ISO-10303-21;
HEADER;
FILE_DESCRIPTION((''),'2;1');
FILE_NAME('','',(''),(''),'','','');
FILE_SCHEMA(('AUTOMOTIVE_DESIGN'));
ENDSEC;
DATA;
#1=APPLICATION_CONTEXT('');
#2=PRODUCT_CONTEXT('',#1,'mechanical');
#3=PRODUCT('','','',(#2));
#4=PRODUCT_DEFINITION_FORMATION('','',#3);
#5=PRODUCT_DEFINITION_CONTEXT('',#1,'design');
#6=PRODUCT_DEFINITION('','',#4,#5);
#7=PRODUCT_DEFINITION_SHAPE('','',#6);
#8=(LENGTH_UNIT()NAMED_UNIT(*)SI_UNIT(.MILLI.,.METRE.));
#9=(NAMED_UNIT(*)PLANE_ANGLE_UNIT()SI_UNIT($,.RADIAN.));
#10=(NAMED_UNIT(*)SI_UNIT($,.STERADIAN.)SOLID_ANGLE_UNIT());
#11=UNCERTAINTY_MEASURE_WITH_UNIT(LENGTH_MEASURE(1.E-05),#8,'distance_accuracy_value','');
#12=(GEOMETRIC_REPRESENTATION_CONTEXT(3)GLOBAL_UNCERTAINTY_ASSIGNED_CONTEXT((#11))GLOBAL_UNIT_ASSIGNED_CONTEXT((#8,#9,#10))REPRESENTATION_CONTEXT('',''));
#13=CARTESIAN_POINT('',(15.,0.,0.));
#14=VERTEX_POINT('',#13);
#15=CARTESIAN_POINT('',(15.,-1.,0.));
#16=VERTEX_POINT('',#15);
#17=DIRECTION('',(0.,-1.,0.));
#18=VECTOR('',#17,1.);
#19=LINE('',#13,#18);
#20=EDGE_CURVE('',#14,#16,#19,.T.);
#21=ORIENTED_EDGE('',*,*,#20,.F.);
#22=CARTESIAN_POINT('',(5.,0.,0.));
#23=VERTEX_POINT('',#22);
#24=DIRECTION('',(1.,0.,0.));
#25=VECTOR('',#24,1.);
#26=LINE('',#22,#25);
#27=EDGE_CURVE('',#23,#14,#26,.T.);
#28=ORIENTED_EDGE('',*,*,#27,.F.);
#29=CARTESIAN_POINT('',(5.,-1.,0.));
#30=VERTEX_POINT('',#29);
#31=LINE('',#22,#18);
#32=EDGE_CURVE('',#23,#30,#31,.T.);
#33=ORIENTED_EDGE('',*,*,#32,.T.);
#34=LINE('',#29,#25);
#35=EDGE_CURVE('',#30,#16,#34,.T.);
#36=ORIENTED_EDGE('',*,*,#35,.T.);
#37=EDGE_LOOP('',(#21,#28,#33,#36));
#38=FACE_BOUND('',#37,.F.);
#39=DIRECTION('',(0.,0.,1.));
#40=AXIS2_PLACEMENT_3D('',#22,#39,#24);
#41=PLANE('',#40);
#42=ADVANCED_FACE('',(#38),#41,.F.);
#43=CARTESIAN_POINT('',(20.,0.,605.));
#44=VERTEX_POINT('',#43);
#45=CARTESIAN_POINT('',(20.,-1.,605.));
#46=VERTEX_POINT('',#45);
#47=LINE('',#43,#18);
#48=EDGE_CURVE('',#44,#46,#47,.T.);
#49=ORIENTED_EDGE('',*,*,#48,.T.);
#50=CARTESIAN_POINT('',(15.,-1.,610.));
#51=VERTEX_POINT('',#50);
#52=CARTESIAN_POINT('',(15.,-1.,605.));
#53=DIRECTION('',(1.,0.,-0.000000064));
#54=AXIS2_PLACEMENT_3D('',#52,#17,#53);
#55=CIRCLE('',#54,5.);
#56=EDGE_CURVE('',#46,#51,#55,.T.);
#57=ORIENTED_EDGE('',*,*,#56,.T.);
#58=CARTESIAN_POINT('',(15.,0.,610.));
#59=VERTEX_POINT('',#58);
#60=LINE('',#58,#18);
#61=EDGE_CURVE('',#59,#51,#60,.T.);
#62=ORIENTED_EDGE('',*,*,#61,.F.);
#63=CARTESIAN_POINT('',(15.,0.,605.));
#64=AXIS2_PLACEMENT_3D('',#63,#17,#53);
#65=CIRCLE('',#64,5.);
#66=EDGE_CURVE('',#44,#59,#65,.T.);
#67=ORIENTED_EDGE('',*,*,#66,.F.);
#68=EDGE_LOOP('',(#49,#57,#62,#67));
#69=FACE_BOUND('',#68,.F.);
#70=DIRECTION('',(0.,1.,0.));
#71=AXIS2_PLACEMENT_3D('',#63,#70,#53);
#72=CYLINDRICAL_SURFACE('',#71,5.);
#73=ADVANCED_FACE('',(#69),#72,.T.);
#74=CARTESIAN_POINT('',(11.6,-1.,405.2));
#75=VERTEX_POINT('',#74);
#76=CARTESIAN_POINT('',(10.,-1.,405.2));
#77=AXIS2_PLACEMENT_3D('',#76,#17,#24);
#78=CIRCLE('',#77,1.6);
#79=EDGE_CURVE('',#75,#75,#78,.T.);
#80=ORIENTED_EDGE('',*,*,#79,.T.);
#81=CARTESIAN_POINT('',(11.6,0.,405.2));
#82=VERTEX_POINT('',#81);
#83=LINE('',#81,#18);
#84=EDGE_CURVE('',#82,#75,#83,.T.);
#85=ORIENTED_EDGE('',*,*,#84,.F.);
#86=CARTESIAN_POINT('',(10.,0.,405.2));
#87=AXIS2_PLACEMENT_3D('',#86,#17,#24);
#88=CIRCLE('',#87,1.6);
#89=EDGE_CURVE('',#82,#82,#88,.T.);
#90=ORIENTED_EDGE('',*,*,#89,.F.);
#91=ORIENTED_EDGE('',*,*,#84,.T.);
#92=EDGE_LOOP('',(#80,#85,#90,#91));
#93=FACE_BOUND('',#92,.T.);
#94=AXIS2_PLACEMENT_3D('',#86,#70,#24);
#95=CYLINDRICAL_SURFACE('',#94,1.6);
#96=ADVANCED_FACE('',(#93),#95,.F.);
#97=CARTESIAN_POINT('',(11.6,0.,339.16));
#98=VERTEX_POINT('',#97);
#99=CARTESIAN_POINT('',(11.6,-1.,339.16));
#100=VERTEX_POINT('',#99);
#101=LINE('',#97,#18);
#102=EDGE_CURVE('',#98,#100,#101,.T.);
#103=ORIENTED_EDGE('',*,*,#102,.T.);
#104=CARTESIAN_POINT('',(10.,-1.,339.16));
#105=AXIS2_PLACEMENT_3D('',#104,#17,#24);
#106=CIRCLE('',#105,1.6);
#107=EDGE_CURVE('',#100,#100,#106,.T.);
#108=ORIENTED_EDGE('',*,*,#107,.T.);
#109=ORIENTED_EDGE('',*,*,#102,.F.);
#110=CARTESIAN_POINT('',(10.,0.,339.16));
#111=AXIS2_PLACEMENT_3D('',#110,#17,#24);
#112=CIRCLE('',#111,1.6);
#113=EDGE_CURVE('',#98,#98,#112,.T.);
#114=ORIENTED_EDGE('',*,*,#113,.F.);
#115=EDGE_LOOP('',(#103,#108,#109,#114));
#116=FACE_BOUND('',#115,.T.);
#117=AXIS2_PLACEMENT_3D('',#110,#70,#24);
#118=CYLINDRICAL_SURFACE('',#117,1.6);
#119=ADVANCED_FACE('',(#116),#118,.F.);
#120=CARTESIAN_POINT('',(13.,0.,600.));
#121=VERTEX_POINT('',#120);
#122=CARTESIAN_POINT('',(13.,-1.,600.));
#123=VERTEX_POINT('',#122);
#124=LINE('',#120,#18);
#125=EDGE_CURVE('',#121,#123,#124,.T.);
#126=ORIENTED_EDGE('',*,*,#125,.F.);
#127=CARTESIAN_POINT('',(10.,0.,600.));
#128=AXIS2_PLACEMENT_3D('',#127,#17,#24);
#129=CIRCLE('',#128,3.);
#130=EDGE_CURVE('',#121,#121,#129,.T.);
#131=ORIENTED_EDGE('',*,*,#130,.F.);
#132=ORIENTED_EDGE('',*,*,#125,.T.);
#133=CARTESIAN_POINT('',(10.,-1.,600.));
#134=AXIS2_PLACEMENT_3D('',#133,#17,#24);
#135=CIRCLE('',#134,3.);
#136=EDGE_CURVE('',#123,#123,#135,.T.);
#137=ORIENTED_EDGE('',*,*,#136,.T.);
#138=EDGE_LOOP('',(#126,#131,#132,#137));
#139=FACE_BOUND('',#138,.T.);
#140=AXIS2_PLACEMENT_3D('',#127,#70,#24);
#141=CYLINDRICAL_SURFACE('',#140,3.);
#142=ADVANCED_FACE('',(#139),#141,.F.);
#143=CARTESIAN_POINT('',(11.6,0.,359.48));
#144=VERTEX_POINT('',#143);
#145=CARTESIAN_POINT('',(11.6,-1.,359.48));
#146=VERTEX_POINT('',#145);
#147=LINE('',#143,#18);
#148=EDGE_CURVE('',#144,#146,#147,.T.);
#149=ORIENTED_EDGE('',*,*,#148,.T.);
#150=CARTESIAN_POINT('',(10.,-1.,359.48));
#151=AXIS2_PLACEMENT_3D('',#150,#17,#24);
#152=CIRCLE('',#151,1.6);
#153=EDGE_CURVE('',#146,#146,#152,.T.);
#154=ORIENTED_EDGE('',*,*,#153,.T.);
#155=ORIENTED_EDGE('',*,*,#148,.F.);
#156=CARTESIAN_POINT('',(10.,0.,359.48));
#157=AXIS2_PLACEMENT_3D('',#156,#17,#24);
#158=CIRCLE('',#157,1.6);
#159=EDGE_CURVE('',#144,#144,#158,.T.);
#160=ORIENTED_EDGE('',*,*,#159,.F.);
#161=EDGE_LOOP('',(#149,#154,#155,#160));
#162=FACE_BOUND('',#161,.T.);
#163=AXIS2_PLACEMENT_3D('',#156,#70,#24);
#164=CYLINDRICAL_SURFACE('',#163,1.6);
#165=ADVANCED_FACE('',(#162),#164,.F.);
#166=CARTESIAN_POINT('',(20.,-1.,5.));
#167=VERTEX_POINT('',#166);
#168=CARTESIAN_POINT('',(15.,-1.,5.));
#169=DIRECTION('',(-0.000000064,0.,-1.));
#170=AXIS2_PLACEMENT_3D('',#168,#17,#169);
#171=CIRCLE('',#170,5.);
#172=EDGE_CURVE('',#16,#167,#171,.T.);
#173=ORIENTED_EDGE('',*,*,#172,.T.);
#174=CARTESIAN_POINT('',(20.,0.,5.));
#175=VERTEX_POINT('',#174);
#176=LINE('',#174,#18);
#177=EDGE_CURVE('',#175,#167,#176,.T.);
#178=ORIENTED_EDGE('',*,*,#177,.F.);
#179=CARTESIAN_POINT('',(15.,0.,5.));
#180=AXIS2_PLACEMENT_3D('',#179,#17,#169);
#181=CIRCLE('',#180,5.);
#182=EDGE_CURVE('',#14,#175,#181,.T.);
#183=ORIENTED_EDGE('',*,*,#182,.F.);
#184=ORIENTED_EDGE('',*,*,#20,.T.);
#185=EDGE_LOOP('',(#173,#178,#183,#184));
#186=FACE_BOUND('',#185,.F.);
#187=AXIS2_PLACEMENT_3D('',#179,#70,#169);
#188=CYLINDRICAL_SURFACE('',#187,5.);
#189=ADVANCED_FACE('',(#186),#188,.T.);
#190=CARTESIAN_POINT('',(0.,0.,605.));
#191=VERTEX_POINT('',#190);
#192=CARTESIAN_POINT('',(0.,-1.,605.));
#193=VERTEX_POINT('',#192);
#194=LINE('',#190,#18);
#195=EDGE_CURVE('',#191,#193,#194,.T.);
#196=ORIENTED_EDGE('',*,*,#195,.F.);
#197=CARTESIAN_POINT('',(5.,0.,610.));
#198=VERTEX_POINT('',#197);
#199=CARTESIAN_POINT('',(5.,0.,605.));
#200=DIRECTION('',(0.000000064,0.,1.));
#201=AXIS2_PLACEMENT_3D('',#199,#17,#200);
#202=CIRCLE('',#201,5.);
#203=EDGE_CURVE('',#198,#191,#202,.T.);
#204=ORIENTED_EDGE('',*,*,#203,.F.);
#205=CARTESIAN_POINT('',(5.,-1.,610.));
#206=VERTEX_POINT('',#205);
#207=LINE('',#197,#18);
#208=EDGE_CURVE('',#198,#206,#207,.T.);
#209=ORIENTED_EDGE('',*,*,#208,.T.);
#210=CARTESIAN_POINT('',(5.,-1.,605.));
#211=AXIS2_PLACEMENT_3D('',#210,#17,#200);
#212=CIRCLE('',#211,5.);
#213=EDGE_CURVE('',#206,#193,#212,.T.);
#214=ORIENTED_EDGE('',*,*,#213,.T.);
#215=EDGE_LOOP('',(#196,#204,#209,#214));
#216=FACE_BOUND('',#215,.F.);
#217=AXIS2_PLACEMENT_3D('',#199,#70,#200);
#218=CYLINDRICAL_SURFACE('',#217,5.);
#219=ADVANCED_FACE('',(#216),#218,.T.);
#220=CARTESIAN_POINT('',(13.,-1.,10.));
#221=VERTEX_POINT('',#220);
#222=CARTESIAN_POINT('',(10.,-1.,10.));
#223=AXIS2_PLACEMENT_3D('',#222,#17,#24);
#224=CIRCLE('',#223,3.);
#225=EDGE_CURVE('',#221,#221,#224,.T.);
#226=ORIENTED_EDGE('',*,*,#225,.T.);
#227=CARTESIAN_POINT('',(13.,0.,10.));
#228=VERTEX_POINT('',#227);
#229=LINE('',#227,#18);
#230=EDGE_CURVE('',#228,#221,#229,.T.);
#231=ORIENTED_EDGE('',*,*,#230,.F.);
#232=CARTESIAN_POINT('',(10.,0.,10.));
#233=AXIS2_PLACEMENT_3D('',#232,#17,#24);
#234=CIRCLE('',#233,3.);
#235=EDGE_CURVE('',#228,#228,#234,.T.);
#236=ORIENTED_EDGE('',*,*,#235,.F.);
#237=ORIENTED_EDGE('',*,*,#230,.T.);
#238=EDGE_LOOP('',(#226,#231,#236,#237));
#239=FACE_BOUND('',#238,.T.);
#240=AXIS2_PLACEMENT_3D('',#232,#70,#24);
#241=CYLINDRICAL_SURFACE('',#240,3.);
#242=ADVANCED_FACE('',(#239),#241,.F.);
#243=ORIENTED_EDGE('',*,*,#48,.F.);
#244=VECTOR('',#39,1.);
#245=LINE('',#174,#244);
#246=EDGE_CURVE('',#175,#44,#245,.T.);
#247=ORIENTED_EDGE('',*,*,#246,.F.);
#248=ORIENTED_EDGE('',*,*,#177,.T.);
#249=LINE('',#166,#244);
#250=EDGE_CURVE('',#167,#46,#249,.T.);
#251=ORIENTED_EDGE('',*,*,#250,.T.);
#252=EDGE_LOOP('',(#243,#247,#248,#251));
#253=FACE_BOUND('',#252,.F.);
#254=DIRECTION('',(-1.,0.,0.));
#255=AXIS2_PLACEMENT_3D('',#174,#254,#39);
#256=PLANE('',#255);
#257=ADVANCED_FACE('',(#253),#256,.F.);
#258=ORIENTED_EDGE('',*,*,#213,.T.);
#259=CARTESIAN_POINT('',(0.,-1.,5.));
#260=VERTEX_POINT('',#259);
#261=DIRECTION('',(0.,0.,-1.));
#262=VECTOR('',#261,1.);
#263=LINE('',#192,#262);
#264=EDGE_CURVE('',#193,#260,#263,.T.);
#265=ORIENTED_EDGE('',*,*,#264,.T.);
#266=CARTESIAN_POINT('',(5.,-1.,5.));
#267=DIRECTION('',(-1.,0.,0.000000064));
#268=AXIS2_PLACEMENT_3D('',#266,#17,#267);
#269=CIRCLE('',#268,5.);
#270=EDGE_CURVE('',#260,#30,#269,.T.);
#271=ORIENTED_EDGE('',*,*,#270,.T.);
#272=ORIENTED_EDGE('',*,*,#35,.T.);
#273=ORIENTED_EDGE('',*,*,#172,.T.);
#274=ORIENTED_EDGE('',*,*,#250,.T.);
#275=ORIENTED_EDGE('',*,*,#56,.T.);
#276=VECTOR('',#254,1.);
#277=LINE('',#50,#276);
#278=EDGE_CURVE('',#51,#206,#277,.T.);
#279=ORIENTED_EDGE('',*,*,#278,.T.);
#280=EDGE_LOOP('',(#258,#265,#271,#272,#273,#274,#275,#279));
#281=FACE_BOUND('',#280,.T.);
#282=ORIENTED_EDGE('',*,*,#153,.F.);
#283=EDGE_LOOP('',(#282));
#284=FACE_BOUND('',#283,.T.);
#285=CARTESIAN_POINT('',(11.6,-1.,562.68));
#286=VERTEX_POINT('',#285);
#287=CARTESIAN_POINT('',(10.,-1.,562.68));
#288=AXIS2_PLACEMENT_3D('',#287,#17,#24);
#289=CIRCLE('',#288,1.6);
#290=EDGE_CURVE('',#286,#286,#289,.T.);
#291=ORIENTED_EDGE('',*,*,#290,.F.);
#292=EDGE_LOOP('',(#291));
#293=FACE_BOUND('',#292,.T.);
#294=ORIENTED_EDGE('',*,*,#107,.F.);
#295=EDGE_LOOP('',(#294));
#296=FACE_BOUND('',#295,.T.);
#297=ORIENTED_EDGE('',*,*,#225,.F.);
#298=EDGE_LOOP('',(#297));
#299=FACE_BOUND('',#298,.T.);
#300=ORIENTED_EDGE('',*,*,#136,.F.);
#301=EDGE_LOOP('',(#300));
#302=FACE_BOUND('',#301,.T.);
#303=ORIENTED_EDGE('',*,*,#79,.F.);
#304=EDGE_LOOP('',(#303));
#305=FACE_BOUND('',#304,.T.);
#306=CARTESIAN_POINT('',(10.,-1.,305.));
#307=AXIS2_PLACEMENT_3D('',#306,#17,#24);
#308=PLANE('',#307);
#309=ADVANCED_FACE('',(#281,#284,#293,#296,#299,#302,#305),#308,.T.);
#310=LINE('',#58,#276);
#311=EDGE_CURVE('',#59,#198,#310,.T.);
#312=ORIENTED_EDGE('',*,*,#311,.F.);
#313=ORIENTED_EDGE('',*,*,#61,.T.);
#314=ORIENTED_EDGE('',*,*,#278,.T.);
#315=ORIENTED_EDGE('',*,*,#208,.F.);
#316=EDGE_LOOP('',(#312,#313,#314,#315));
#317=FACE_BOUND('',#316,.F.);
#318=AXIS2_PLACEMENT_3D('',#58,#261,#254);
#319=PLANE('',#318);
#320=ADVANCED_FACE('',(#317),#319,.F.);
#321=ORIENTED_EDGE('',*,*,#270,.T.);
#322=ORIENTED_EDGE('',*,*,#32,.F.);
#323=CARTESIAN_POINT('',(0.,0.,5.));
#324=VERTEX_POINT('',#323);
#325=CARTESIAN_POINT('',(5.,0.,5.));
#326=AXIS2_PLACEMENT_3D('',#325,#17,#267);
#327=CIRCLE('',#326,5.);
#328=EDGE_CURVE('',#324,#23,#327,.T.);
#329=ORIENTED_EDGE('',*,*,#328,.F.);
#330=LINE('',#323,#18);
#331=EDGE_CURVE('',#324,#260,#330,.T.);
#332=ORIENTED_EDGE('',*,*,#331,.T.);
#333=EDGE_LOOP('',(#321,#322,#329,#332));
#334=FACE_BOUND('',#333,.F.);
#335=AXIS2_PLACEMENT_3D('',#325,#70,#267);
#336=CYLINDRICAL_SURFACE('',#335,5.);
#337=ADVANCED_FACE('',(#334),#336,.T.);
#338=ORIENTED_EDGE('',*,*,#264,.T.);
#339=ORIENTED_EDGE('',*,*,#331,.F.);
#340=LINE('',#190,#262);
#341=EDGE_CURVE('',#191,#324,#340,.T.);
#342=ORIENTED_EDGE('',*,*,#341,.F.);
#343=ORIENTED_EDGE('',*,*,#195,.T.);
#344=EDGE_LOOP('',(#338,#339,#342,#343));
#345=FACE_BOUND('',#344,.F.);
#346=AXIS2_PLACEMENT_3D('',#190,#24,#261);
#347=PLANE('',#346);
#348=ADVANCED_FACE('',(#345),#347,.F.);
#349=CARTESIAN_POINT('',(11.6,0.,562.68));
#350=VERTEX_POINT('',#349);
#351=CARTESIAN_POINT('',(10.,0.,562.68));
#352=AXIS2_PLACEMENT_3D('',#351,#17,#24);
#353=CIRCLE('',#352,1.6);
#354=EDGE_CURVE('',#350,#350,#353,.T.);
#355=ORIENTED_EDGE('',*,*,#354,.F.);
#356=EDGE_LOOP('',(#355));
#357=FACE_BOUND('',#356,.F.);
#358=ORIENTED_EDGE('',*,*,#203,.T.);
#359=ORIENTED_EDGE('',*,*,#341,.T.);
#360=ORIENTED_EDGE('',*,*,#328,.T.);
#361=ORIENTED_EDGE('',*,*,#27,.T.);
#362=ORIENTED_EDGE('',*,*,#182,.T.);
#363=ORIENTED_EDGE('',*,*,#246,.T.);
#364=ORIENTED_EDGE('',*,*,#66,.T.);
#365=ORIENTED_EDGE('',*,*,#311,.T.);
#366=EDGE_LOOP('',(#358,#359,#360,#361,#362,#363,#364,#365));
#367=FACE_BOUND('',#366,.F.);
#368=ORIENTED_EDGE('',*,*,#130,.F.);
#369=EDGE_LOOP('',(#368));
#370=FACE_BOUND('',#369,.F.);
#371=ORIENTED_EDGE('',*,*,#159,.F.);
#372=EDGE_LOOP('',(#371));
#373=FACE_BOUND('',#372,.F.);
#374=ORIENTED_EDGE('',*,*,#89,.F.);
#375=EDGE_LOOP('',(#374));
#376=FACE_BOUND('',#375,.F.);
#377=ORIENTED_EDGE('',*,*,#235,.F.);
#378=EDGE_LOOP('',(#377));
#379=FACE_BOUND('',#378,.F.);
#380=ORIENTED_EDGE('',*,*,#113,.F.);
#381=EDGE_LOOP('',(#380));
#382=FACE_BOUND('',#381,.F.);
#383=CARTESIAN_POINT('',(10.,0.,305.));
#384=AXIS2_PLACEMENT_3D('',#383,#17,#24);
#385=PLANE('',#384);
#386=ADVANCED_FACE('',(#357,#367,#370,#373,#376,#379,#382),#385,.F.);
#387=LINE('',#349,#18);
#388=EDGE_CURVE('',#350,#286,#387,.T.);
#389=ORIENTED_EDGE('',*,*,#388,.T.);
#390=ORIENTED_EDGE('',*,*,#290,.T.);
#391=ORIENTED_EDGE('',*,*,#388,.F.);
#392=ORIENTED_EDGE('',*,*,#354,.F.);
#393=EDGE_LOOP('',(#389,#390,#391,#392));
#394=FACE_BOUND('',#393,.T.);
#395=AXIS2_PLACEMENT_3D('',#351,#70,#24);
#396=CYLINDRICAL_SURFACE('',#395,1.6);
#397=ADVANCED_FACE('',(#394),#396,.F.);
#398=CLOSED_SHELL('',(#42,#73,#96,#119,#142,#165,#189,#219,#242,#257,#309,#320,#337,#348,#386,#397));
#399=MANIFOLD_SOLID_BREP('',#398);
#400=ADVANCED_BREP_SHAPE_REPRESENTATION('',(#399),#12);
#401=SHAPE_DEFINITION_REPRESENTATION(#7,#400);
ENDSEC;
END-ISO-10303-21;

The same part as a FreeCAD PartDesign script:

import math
import FreeCAD as App
import Part
import Sketcher

V = App.Vector

doc = App.newDocument("Part")
body = doc.addObject("PartDesign::Body", "Body")

sketch1 = doc.addObject("Sketcher::SketchObject", "Sketch")
body.addObject(sketch1)
sketch1.AttachmentSupport = (doc.XZ_Plane, [""])
sketch1.MapMode = "FlatFace"
sketch1.addGeometry([
    Part.ArcOfCircle(Part.Circle(V(5, 5, 0), V(0, 0, 1), 5), math.radians(180), math.radians(270)),
    Part.LineSegment(V(5, 0, 0), V(15, 0, 0)),
    Part.ArcOfCircle(Part.Circle(V(15, 5, 0), V(0, 0, 1), 5), math.radians(-90), math.radians(0)),
    Part.LineSegment(V(20, 5, 0), V(20, 605, 0)),
    Part.ArcOfCircle(Part.Circle(V(15, 605, 0), V(0, 0, 1), 5), math.radians(0), math.radians(90)),
    Part.LineSegment(V(15, 610, 0), V(5, 610, 0)),
    Part.ArcOfCircle(Part.Circle(V(5, 605, 0), V(0, 0, 1), 5), math.radians(90), math.radians(180)),
    Part.LineSegment(V(0, 605, 0), V(0, 5, 0)),
    Part.Circle(V(10, 10, 0), V(0, 0, 1), 3),
    Part.Circle(V(10, 339.2, 0), V(0, 0, 1), 1.6),
    Part.Circle(V(10, 359.5, 0), V(0, 0, 1), 1.6),
    Part.Circle(V(10, 405.2, 0), V(0, 0, 1), 1.6),
    Part.Circle(V(10, 562.7, 0), V(0, 0, 1), 1.6),
    Part.Circle(V(10, 600, 0), V(0, 0, 1), 3),
], False)
sketch1.addConstraint([
    Sketcher.Constraint("Tangent", 0, 2, 1, 1),
    Sketcher.Constraint("Tangent", 1, 2, 2, 1),
    Sketcher.Constraint("Tangent", 2, 2, 3, 1),
    Sketcher.Constraint("Tangent", 3, 2, 4, 1),
    Sketcher.Constraint("Tangent", 4, 2, 5, 1),
    Sketcher.Constraint("Tangent", 5, 2, 6, 1),
    Sketcher.Constraint("Tangent", 6, 2, 7, 1),
    Sketcher.Constraint("Tangent", 7, 2, 0, 1),
    Sketcher.Constraint("Horizontal", 1),
    Sketcher.Constraint("Vertical", 3),
    Sketcher.Constraint("Horizontal", 5),
    Sketcher.Constraint("Vertical", 7),
    Sketcher.Constraint("Equal", 0, 2),
    Sketcher.Constraint("Equal", 2, 4),
    Sketcher.Constraint("Equal", 4, 6),
    Sketcher.Constraint("Equal", 9, 10),
    Sketcher.Constraint("Equal", 10, 11),
    Sketcher.Constraint("Equal", 11, 12),
    Sketcher.Constraint("Equal", 8, 13),
    Sketcher.Constraint("PointOnObject", 0, 2, -1),
    Sketcher.Constraint("PointOnObject", 6, 2, -2),
    Sketcher.Constraint("Vertical", 8, 3, 9, 3),
    Sketcher.Constraint("Vertical", 9, 3, 10, 3),
    Sketcher.Constraint("Vertical", 10, 3, 11, 3),
    Sketcher.Constraint("Vertical", 11, 3, 12, 3),
    Sketcher.Constraint("Vertical", 12, 3, 13, 3),
    Sketcher.Constraint("Diameter", 8, 6.0),
    Sketcher.Constraint("Radius", 0, 5.0),
    Sketcher.Constraint("Diameter", 9, 3.2),
    Sketcher.Constraint("DistanceX", 1, 1, 1, 2, 10.0),
    Sketcher.Constraint("DistanceY", 3, 1, 3, 2, 600.0),
    Sketcher.Constraint("DistanceX", -1, 1, 8, 3, 10.0),
    Sketcher.Constraint("DistanceY", -1, 1, 8, 3, 10.0),
    Sketcher.Constraint("DistanceY", -1, 1, 13, 3, 600.0),
    Sketcher.Constraint("DistanceY", -1, 1, 11, 3, 405.2),
    Sketcher.Constraint("DistanceY", 10, 3, 12, 3, 203.2),
    Sketcher.Constraint("DistanceY", -1, 1, 9, 3, 339.16),
    Sketcher.Constraint("DistanceY", -1, 1, 10, 3, 359.48),
])
pad1 = doc.addObject("PartDesign::Pad", "Pad")
body.addObject(pad1)
pad1.Profile = sketch1
pad1.Length = 1

doc.recompute()
